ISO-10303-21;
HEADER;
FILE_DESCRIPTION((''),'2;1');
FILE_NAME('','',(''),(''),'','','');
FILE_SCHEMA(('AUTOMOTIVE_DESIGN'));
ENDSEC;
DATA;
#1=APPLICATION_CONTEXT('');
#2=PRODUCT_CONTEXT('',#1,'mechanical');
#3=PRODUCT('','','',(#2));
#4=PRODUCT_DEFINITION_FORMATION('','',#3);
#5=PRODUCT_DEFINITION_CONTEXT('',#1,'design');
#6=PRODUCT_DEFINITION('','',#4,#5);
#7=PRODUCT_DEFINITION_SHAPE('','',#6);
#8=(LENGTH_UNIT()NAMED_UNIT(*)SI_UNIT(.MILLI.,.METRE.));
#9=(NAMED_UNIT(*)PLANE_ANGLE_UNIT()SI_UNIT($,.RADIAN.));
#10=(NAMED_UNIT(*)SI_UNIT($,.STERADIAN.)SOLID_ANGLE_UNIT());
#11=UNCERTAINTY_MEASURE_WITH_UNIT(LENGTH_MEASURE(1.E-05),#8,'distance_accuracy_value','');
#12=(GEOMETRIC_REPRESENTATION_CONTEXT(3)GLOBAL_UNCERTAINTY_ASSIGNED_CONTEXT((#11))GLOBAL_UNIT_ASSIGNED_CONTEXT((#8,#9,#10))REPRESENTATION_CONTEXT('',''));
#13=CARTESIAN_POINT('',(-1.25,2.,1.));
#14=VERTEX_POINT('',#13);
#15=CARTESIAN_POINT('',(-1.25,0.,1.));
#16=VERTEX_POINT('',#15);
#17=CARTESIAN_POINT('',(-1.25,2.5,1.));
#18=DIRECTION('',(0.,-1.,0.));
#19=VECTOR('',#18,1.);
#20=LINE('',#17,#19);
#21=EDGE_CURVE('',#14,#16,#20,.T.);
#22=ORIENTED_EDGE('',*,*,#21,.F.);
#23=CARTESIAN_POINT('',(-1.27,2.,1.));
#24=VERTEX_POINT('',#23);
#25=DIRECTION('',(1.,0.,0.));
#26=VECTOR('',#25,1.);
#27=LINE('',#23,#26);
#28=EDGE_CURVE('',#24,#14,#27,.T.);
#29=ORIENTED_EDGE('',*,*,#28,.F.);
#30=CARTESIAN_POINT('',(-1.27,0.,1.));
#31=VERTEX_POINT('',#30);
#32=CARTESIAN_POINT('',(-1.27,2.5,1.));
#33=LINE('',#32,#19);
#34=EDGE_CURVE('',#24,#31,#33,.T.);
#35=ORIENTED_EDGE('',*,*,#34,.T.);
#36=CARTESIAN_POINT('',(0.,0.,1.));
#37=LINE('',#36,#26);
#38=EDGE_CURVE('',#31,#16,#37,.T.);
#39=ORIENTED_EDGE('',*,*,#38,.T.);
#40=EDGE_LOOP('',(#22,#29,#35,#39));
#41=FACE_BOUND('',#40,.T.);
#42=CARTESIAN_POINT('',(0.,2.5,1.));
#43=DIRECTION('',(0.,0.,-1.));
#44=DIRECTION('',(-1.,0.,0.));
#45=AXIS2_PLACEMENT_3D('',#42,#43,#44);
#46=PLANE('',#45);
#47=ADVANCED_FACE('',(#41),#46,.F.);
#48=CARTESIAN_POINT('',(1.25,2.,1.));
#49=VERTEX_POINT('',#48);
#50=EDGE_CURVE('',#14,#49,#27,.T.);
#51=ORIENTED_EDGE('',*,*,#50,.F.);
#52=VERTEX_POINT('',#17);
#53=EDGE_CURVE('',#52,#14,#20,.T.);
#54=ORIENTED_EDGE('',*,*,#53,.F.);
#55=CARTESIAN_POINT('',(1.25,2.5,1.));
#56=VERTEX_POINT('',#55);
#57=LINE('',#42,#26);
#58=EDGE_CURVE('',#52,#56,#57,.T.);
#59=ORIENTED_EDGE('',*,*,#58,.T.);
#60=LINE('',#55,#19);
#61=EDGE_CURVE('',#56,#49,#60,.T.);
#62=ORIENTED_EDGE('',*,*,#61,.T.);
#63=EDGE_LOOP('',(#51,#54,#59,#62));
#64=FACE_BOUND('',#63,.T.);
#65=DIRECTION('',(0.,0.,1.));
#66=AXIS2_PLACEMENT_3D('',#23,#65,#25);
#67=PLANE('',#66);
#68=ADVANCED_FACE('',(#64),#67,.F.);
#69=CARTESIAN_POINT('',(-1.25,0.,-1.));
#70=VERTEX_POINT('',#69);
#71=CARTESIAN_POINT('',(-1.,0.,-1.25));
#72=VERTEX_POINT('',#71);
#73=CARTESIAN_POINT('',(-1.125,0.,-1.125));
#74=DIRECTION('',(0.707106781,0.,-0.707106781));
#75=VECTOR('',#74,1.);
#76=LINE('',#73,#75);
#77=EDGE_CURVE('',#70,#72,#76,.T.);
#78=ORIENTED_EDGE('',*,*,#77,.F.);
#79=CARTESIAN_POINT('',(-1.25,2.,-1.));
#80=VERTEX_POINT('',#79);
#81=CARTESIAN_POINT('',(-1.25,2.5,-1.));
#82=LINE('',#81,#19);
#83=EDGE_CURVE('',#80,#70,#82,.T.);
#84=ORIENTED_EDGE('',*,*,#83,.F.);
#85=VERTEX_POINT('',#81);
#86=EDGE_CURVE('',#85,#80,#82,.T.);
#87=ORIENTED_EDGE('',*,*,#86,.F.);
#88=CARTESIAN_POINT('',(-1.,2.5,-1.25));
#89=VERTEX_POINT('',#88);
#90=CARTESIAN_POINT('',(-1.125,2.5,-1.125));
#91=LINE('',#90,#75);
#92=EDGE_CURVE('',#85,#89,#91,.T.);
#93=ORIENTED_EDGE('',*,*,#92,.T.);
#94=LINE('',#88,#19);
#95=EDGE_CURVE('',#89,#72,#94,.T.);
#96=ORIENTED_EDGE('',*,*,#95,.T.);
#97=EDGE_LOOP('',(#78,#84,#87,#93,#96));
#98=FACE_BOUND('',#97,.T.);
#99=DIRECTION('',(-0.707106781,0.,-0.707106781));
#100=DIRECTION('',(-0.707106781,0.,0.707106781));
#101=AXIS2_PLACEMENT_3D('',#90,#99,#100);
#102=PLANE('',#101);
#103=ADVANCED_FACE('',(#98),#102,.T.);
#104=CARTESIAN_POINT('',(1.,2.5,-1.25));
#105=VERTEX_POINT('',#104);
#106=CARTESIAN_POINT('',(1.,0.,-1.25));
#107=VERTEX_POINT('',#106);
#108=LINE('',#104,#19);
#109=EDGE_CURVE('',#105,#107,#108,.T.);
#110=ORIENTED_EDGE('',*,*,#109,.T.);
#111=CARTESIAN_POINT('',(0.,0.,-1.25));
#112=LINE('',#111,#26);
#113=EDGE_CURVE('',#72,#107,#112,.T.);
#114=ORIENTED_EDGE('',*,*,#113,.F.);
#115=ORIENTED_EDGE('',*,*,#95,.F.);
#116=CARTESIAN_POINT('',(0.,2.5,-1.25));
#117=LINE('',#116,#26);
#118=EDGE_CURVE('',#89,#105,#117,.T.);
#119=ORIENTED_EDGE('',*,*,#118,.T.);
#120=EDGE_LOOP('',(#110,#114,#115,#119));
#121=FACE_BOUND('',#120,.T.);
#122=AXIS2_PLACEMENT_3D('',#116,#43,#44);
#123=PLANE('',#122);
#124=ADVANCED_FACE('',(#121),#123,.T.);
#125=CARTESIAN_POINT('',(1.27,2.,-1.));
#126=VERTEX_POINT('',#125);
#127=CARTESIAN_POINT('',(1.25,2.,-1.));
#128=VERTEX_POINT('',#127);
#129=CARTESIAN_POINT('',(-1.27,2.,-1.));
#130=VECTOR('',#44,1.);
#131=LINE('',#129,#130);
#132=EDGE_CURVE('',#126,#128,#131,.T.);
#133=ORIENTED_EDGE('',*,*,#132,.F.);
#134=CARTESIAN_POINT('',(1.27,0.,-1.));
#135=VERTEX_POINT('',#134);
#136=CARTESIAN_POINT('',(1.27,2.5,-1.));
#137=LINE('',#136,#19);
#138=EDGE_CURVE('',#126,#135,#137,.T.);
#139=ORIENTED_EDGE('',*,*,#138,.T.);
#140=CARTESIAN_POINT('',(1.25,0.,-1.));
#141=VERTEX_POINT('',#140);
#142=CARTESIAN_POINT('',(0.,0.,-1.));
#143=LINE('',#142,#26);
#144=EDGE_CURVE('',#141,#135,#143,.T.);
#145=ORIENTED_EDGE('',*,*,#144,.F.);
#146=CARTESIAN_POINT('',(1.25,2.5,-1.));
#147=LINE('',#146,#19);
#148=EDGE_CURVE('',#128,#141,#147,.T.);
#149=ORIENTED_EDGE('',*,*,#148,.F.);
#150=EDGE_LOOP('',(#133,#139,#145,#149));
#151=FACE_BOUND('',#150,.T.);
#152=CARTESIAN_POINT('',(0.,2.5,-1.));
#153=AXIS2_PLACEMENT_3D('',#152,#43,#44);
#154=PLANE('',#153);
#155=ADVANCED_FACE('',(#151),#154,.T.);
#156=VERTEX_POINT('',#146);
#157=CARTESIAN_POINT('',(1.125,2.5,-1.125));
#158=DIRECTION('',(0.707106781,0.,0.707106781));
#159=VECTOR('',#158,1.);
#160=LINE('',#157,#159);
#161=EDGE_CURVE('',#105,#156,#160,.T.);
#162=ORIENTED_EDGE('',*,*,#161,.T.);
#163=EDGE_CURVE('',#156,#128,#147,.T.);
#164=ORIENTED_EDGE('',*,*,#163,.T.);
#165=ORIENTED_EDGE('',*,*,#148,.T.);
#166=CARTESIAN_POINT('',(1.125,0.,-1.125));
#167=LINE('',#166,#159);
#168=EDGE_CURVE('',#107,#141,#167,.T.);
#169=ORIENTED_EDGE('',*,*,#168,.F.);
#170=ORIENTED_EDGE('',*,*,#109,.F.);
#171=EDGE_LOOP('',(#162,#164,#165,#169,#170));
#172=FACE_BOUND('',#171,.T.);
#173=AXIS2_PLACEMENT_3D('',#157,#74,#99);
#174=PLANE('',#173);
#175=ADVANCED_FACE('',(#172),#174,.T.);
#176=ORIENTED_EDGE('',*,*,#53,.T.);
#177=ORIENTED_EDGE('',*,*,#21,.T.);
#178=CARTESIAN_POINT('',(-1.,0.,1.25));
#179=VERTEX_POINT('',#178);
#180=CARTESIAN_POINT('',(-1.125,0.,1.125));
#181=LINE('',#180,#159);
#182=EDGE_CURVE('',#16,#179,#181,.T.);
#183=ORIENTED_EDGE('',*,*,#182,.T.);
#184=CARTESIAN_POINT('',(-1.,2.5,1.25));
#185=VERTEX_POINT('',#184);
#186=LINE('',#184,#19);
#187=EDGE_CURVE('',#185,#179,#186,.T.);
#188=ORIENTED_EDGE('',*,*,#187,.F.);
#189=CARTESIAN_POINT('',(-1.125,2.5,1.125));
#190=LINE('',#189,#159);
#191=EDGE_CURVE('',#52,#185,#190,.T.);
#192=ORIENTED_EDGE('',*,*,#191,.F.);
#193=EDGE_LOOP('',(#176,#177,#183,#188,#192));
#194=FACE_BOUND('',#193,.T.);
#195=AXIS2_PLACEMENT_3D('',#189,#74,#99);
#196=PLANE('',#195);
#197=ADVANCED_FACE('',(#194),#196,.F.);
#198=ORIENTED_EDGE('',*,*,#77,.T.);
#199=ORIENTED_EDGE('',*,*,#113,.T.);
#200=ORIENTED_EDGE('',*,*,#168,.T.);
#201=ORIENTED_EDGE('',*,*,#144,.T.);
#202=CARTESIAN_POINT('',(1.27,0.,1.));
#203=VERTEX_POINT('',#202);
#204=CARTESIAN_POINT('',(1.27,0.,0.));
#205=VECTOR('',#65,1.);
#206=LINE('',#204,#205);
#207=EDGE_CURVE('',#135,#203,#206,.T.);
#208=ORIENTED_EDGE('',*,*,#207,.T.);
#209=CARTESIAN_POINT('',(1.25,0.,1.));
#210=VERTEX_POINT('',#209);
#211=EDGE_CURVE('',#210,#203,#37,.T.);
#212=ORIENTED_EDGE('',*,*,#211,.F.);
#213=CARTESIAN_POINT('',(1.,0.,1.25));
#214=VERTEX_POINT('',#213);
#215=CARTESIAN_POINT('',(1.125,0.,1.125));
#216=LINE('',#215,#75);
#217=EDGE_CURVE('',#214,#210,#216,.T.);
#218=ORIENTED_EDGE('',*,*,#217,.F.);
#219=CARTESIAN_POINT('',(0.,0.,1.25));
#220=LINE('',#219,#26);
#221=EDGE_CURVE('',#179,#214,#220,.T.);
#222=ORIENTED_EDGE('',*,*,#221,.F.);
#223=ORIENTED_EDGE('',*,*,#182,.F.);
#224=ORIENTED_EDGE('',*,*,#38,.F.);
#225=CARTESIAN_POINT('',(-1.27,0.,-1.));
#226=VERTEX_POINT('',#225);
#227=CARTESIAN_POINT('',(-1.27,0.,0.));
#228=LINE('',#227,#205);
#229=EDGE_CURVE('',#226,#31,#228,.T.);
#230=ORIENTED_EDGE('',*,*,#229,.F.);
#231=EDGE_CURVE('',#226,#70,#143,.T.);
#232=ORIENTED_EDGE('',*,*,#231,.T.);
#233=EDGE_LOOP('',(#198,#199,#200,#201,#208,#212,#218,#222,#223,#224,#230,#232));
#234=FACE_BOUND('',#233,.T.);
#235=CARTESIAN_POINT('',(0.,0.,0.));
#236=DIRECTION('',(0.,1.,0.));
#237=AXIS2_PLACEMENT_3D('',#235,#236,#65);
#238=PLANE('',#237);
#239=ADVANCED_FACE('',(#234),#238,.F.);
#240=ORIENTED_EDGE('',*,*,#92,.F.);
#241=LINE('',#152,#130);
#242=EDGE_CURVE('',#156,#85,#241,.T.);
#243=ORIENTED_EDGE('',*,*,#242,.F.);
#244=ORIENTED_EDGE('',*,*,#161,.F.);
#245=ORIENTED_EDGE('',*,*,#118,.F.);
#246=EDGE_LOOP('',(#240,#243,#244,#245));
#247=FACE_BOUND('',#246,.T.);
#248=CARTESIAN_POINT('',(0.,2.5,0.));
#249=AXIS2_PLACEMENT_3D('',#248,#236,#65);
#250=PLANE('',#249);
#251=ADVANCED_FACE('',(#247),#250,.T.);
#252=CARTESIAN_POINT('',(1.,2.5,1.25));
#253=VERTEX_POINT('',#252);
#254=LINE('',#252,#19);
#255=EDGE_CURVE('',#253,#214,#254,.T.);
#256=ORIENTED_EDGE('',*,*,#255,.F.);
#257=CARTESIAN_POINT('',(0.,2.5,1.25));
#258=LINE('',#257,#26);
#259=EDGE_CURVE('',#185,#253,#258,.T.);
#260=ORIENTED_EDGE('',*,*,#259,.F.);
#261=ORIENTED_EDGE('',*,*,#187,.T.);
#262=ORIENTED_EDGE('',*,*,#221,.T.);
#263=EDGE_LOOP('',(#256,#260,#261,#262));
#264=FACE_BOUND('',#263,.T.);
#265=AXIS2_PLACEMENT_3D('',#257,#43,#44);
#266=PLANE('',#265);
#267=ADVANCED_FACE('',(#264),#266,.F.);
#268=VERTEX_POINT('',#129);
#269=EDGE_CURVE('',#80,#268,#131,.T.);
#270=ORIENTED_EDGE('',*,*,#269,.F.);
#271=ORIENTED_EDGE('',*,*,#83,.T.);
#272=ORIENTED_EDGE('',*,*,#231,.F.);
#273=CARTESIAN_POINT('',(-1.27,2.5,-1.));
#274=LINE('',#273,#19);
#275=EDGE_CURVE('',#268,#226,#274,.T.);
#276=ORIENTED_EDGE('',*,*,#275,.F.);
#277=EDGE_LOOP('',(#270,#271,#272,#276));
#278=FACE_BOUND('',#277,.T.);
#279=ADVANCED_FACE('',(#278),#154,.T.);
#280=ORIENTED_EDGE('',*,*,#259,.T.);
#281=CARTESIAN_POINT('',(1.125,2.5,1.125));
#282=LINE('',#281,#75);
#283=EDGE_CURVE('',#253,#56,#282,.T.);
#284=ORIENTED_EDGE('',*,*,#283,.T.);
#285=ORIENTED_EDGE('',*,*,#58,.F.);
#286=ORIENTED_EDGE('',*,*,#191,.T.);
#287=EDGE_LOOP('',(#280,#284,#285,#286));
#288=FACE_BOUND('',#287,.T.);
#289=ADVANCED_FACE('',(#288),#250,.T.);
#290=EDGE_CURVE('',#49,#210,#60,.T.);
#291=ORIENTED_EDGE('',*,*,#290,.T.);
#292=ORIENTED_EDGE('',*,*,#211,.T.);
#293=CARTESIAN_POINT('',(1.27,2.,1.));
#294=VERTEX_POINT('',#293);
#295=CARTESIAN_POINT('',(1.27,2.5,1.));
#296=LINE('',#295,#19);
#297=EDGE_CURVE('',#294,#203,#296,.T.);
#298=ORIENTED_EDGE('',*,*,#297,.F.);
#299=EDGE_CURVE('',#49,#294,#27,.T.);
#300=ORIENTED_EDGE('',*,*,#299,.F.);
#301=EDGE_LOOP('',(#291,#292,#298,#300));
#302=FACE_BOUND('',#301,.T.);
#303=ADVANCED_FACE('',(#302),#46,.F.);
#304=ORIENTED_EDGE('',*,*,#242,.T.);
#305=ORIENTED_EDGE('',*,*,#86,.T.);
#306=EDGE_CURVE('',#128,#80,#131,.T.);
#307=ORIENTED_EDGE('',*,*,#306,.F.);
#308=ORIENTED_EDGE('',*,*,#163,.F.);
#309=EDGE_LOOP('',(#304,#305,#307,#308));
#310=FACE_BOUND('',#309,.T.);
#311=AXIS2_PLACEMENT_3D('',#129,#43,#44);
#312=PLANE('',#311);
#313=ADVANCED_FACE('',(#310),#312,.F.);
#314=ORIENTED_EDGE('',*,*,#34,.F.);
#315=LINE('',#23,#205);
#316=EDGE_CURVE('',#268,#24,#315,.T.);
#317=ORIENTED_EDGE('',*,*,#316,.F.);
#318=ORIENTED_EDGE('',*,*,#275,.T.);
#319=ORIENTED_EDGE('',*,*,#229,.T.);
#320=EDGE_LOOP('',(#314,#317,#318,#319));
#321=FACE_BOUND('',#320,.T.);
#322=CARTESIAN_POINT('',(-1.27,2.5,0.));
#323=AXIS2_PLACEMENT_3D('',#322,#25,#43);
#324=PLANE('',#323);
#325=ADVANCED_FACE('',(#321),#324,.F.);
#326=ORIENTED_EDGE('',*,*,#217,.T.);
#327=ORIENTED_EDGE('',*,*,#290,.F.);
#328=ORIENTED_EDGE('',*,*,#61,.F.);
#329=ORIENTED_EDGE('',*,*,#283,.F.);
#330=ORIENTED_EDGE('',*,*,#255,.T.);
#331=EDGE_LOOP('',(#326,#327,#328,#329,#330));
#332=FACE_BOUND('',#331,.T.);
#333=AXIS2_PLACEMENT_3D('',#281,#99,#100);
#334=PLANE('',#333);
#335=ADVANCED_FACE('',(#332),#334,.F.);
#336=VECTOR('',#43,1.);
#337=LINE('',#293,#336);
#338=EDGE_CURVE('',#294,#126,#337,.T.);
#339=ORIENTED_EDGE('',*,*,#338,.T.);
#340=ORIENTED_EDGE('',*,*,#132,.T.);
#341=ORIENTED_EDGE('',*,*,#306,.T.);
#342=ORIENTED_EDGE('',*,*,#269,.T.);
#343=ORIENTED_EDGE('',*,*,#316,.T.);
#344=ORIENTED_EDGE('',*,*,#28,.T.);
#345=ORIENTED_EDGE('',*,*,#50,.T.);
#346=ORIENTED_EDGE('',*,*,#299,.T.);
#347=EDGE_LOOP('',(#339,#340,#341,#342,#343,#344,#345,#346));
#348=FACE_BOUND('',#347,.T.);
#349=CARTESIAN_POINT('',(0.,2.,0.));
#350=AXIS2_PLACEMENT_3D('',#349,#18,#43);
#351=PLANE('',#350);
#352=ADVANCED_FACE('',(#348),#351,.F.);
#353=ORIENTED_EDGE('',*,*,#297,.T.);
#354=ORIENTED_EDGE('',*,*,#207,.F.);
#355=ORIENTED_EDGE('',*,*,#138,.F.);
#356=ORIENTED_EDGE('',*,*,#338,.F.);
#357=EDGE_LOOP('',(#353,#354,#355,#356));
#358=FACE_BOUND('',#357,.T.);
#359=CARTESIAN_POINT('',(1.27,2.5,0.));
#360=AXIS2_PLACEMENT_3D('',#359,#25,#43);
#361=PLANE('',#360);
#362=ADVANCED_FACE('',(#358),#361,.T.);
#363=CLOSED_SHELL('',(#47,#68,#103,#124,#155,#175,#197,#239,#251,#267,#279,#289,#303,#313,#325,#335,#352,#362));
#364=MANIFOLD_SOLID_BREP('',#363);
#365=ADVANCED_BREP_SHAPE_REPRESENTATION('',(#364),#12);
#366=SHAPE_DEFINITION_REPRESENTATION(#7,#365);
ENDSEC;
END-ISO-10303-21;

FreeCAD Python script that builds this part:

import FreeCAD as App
import Part
import Sketcher

V = App.Vector

doc = App.newDocument("Part")
body = doc.addObject("PartDesign::Body", "Body")

# Sketch on XZ plane
sketch1 = body.newObject("Sketcher::SketchObject", "Sketch")
sketch1.AttachmentSupport = (doc.getObject("XZ_Plane"), [""])
sketch1.MapMode = "FlatFace"
sketch1.addGeometry([
    Part.LineSegment(V(-1.27, -1, 0), V(-1.27, 1, 0)),  # 0
    Part.LineSegment(V(-1.27, 1, 0), V(-1.25, 1, 0)),  # 1
    Part.LineSegment(V(-1.25, 1, 0), V(-1, 1.25, 0)),  # 2
    Part.LineSegment(V(-1, 1.25, 0), V(1, 1.25, 0)),  # 3
    Part.LineSegment(V(1, 1.25, 0), V(1.25, 1, 0)),  # 4
    Part.LineSegment(V(1.25, 1, 0), V(1.27, 1, 0)),  # 5
    Part.LineSegment(V(1.27, 1, 0), V(1.27, -1, 0)),  # 6
    Part.LineSegment(V(1.27, -1, 0), V(1.25, -1, 0)),  # 7
    Part.LineSegment(V(1.25, -1, 0), V(1, -1.25, 0)),  # 8
    Part.LineSegment(V(1, -1.25, 0), V(-1, -1.25, 0)),  # 9
    Part.LineSegment(V(-1, -1.25, 0), V(-1.25, -1, 0)),  # 10
    Part.LineSegment(V(-1.25, -1, 0), V(-1.27, -1, 0)),  # 11
], False)
sketch1.addConstraint([
    Sketcher.Constraint("Coincident", 0, 2, 1, 1),
    Sketcher.Constraint("Coincident", 1, 2, 2, 1),
    Sketcher.Constraint("Coincident", 2, 2, 3, 1),
    Sketcher.Constraint("Coincident", 3, 2, 4, 1),
    Sketcher.Constraint("Coincident", 4, 2, 5, 1),
    Sketcher.Constraint("Coincident", 5, 2, 6, 1),
    Sketcher.Constraint("Coincident", 6, 2, 7, 1),
    Sketcher.Constraint("Coincident", 7, 2, 8, 1),
    Sketcher.Constraint("Coincident", 8, 2, 9, 1),
    Sketcher.Constraint("Coincident", 9, 2, 10, 1),
    Sketcher.Constraint("Coincident", 10, 2, 11, 1),
    Sketcher.Constraint("Coincident", 11, 2, 0, 1),
    Sketcher.Constraint("Vertical", 0),
    Sketcher.Constraint("Horizontal", 1),
    Sketcher.Constraint("Horizontal", 3),
    Sketcher.Constraint("Horizontal", 5),
    Sketcher.Constraint("Vertical", 6),
    Sketcher.Constraint("Horizontal", 7),
    Sketcher.Constraint("Horizontal", 9),
    Sketcher.Constraint("Horizontal", 11),
    Sketcher.Constraint("Symmetric", 0, 2, 6, 2, -1, 1),
    Sketcher.Constraint("Symmetric", 2, 2, 8, 2, -1, 1),
    Sketcher.Constraint("Symmetric", 4, 2, 10, 2, -1, 1),
    Sketcher.Constraint("Symmetric", 1, 2, 4, 2, -2),
    Sketcher.Constraint("Perpendicular", 2, 4),
    Sketcher.Constraint("Perpendicular", 4, 8),
    Sketcher.Constraint("Perpendicular", 8, 10),
    Sketcher.Constraint("Vertical", 3, 2, 8, 2),
    Sketcher.Constraint("Equal", 9, 0),
    Sketcher.Constraint("DistanceX", 3, 1, 3, 2, 2.0),
    Sketcher.Constraint("DistanceX", 1, 1, 1, 2, 0.02),
    Sketcher.Constraint("DistanceX", 1, 2, 4, 2, 2.5),
])
pad1 = body.newObject("PartDesign::Pad", "Pad")
pad1.Profile = sketch1
pad1.Length = 2.5
pad1.Reversed = True

# Sketch on XZ plane
sketch2 = body.newObject("Sketcher::SketchObject", "Sketch001")
sketch2.AttachmentSupport = (doc.getObject("XZ_Plane"), [""])
sketch2.MapMode = "FlatFace"
sketch2.AttachmentOffset = App.Placement(V(0, 0, -2.5), App.Rotation())
sketch2.addGeometry([
    Part.LineSegment(V(-1.3, -1, 0), V(-1.3, 1, 0)),
    Part.LineSegment(V(-1.3, 1, 0), V(1.3, 1, 0)),
    Part.LineSegment(V(1.3, 1, 0), V(1.3, -1, 0)),
    Part.LineSegment(V(1.3, -1, 0), V(-1.3, -1, 0)),
], False)
sketch2.addConstraint([
    Sketcher.Constraint("Coincident", 0, 2, 1, 1),
    Sketcher.Constraint("Coincident", 1, 2, 2, 1),
    Sketcher.Constraint("Coincident", 2, 2, 3, 1),
    Sketcher.Constraint("Coincident", 3, 2, 0, 1),
    Sketcher.Constraint("Vertical", 0),
    Sketcher.Constraint("Horizontal", 1),
    Sketcher.Constraint("Vertical", 2),
    Sketcher.Constraint("Horizontal", 3),
    Sketcher.Constraint("Symmetric", 0, 2, 2, 2, -1, 1),
    Sketcher.Constraint("DistanceY", 0, 1, 0, 2, 2.0),
    Sketcher.Constraint("DistanceX", 1, 1, 1, 2, 2.54),
])
pocket1 = body.newObject("PartDesign::Pocket", "Pocket")
pocket1.Profile = sketch2
pocket1.Length = 0.5
pocket1.Reversed = True

doc.recompute()
